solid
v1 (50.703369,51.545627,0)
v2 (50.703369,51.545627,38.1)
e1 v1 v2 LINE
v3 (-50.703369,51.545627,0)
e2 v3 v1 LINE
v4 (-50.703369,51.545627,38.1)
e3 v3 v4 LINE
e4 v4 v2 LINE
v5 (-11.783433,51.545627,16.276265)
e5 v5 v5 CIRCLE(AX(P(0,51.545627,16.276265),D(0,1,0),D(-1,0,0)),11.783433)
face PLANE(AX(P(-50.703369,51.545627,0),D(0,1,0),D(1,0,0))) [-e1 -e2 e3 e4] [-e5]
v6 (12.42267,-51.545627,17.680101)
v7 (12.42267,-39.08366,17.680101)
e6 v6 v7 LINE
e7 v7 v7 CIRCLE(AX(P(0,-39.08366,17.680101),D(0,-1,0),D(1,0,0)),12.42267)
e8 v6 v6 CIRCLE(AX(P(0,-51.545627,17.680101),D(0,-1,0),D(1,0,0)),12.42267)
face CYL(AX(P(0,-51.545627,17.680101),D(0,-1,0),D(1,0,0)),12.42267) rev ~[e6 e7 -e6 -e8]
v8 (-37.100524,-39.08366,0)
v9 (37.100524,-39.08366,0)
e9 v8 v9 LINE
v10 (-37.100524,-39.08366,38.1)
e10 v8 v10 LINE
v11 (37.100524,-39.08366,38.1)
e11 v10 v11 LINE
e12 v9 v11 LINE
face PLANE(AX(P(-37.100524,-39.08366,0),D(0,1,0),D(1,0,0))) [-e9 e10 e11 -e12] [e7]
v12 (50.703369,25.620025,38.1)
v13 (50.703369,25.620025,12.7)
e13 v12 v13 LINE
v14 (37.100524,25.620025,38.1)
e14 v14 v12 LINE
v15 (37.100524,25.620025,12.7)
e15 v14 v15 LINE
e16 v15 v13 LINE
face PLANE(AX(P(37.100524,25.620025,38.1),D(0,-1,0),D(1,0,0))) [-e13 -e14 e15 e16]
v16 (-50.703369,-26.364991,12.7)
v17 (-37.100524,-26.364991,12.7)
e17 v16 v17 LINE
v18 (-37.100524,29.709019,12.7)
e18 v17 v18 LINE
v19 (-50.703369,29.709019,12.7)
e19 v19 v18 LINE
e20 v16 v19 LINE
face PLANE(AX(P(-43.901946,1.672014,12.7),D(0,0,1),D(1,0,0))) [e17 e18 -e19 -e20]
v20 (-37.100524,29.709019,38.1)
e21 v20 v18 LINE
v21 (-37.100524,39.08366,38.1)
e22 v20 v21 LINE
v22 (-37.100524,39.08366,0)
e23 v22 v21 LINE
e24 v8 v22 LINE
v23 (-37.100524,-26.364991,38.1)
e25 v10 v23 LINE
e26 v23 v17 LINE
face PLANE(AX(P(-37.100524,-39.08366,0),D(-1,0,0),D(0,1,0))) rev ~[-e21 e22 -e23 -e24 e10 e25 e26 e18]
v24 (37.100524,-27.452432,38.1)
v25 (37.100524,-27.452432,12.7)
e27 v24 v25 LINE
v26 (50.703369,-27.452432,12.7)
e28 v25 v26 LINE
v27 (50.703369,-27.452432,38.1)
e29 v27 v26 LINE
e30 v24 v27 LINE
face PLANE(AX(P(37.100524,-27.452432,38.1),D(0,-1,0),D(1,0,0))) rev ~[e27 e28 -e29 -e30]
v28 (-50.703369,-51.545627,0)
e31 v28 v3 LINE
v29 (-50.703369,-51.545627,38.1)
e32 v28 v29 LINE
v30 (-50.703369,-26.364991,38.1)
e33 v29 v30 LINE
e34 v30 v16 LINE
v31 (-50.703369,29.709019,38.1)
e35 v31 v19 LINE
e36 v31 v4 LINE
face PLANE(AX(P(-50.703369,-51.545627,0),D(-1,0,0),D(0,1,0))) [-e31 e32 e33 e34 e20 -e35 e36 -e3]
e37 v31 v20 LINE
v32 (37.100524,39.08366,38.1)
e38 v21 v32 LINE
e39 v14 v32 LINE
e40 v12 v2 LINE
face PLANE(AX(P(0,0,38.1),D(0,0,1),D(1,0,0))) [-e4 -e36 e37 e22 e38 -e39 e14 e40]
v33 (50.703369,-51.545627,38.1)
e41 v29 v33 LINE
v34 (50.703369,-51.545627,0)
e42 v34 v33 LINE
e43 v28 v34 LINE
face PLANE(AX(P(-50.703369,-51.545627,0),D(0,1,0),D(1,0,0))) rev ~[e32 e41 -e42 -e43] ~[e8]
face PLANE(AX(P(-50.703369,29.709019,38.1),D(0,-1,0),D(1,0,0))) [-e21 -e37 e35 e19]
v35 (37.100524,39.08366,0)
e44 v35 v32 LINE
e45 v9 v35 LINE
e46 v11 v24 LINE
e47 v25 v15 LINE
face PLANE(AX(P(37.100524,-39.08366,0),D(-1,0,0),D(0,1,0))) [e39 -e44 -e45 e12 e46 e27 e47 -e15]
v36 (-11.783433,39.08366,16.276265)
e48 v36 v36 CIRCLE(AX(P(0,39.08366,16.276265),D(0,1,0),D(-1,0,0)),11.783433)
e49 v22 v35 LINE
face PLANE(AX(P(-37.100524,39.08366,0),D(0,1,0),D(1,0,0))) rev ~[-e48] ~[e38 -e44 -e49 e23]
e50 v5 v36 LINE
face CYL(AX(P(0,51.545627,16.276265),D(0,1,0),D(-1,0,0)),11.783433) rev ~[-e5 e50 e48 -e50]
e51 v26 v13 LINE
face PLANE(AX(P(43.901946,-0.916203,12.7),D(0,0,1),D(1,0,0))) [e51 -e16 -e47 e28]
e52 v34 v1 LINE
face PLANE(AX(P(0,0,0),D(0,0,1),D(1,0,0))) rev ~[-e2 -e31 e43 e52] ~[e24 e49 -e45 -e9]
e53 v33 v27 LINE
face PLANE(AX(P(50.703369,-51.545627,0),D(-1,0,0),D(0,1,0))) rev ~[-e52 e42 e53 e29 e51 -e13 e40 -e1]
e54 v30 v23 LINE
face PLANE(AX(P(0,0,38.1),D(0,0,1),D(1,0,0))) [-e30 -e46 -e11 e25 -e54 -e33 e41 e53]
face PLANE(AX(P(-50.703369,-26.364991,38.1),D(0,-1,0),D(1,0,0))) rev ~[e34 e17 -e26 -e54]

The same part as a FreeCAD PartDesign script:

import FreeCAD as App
import Part
import Sketcher

doc = App.newDocument("Part")
params = doc.addObject("Spreadsheet::Sheet", "Params")
for row, (alias, value) in enumerate([
    ("pad1_length", "1.5 in"),
    ("pocket1_length", "1 in"),
    ("pocket2_length", "1 in"),
    ("pocket3_length", "1 in"),
    ("pocket4_length", "1 in"),
], start=1):
    params.set(f"A{row}", alias)
    params.set(f"B{row}", "=" + value)
    params.setAlias(f"B{row}", alias)

body = doc.addObject("PartDesign::Body", "Body")

sketch1 = doc.addObject("Sketcher::SketchObject", "Sketch")
body.addObject(sketch1)
sketch1.AttachmentSupport = (doc.XY_Plane, [""])
sketch1.MapMode = "FlatFace"
sketch1.addGeometry(Part.LineSegment(App.Vector(-51, 52, 0), App.Vector(-51, -52, 0)), False)
sketch1.addGeometry(Part.LineSegment(App.Vector(-51, -52, 0), App.Vector(51, -52, 0)), False)
sketch1.addGeometry(Part.LineSegment(App.Vector(51, -52, 0), App.Vector(51, 52, 0)), False)
sketch1.addGeometry(Part.LineSegment(App.Vector(51, 52, 0), App.Vector(-51, 52, 0)), False)
sketch1.addGeometry(Part.LineSegment(App.Vector(37, -39, 0), App.Vector(-37, -39, 0)), False)
sketch1.addGeometry(Part.LineSegment(App.Vector(-37, -39, 0), App.Vector(-37, 39, 0)), False)
sketch1.addGeometry(Part.LineSegment(App.Vector(-37, 39, 0), App.Vector(37, 39, 0)), False)
sketch1.addGeometry(Part.LineSegment(App.Vector(37, 39, 0), App.Vector(37, -39, 0)), False)
sketch1.addConstraint(Sketcher.Constraint("Coincident", 0, 2, 1, 1))
sketch1.addConstraint(Sketcher.Constraint("Coincident", 1, 2, 2, 1))
sketch1.addConstraint(Sketcher.Constraint("Coincident", 2, 2, 3, 1))
sketch1.addConstraint(Sketcher.Constraint("Coincident", 3, 2, 0, 1))
sketch1.addConstraint(Sketcher.Constraint("Coincident", 4, 2, 5, 1))
sketch1.addConstraint(Sketcher.Constraint("Coincident", 5, 2, 6, 1))
sketch1.addConstraint(Sketcher.Constraint("Coincident", 6, 2, 7, 1))
sketch1.addConstraint(Sketcher.Constraint("Coincident", 7, 2, 4, 1))
sketch1.addConstraint(Sketcher.Constraint("Vertical", 0))
sketch1.addConstraint(Sketcher.Constraint("Horizontal", 1))
sketch1.addConstraint(Sketcher.Constraint("Vertical", 2))
sketch1.addConstraint(Sketcher.Constraint("Horizontal", 3))
sketch1.addConstraint(Sketcher.Constraint("Horizontal", 4))
sketch1.addConstraint(Sketcher.Constraint("Vertical", 5))
sketch1.addConstraint(Sketcher.Constraint("Horizontal", 6))
sketch1.addConstraint(Sketcher.Constraint("Vertical", 7))
sketch1.addConstraint(Sketcher.Constraint("Symmetric", 0, 2, 2, 2, -1, 1))
sketch1.addConstraint(Sketcher.Constraint("Symmetric", 4, 2, 6, 2, -1, 1))
sketch1.addConstraint(Sketcher.Constraint("DistanceX", 1, 1, 1, 2, 101.406738))
sketch1.addConstraint(Sketcher.Constraint("DistanceY", 5, 1, 5, 2, 78.167319))
sketch1.addConstraint(Sketcher.Constraint("DistanceX", 4, 2, 4, 1, 74.201047))
sketch1.addConstraint(Sketcher.Constraint("DistanceY", 0, 2, 0, 1, 103.091255))
pad1 = doc.addObject("PartDesign::Pad", "Pad")
body.addObject(pad1)
pad1.Profile = sketch1
pad1.setExpression("Length", "Params.pad1_length")

sketch2 = doc.addObject("Sketcher::SketchObject", "Sketch001")
body.addObject(sketch2)
sketch2.AttachmentSupport = (doc.XY_Plane, [""])
sketch2.MapMode = "FlatFace"
sketch2.AttachmentOffset = App.Placement(App.Vector(0, 0, 1.5 * 25.4), App.Rotation())
sketch2.addGeometry(Part.LineSegment(App.Vector(-51, 30, 0), App.Vector(-51, -26, 0)), False)
sketch2.addGeometry(Part.LineSegment(App.Vector(-51, -26, 0), App.Vector(-37, -26, 0)), False)
sketch2.addGeometry(Part.LineSegment(App.Vector(-37, -26, 0), App.Vector(-37, 30, 0)), False)
sketch2.addGeometry(Part.LineSegment(App.Vector(-37, 30, 0), App.Vector(-51, 30, 0)), False)
sketch2.addConstraint(Sketcher.Constraint("Coincident", 0, 2, 1, 1))
sketch2.addConstraint(Sketcher.Constraint("Coincident", 1, 2, 2, 1))
sketch2.addConstraint(Sketcher.Constraint("Coincident", 2, 2, 3, 1))
sketch2.addConstraint(Sketcher.Constraint("Coincident", 3, 2, 0, 1))
sketch2.addConstraint(Sketcher.Constraint("Vertical", 0))
sketch2.addConstraint(Sketcher.Constraint("Horizontal", 1))
sketch2.addConstraint(Sketcher.Constraint("Vertical", 2))
sketch2.addConstraint(Sketcher.Constraint("Horizontal", 3))
sketch2.addConstraint(Sketcher.Constraint("DistanceY", 0, 2, 0, 1, 56.07401))
sketch2.addConstraint(Sketcher.Constraint("DistanceX", 1, 1, 1, 2, 13.602845))
sketch2.addConstraint(Sketcher.Constraint("DistanceX", 0, 2, -1, 1, 50.703369))
sketch2.addConstraint(Sketcher.Constraint("DistanceY", 0, 2, -1, 1, 26.364991))
pocket1 = doc.addObject("PartDesign::Pocket", "Pocket")
body.addObject(pocket1)
pocket1.Profile = sketch2
pocket1.setExpression("Length", "Params.pocket1_length")

sketch3 = doc.addObject("Sketcher::SketchObject", "Sketch002")
body.addObject(sketch3)
sketch3.AttachmentSupport = (doc.XY_Plane, [""])
sketch3.MapMode = "FlatFace"
sketch3.AttachmentOffset = App.Placement(App.Vector(0, 0, 1.5 * 25.4), App.Rotation())
sketch3.addGeometry(Part.LineSegment(App.Vector(37, 26, 0), App.Vector(37, -27, 0)), False)
sketch3.addGeometry(Part.LineSegment(App.Vector(37, -27, 0), App.Vector(51, -27, 0)), False)
sketch3.addGeometry(Part.LineSegment(App.Vector(51, -27, 0), App.Vector(51, 26, 0)), False)
sketch3.addGeometry(Part.LineSegment(App.Vector(51, 26, 0), App.Vector(37, 26, 0)), False)
sketch3.addConstraint(Sketcher.Constraint("Coincident", 0, 2, 1, 1))
sketch3.addConstraint(Sketcher.Constraint("Coincident", 1, 2, 2, 1))
sketch3.addConstraint(Sketcher.Constraint("Coincident", 2, 2, 3, 1))
sketch3.addConstraint(Sketcher.Constraint("Coincident", 3, 2, 0, 1))
sketch3.addConstraint(Sketcher.Constraint("Vertical", 0))
sketch3.addConstraint(Sketcher.Constraint("Horizontal", 1))
sketch3.addConstraint(Sketcher.Constraint("Vertical", 2))
sketch3.addConstraint(Sketcher.Constraint("Horizontal", 3))
sketch3.addConstraint(Sketcher.Constraint("DistanceX", 1, 1, 1, 2, 13.602845))
sketch3.addConstraint(Sketcher.Constraint("DistanceY", 0, 2, 0, 1, 53.072456))
sketch3.addConstraint(Sketcher.Constraint("DistanceY", 0, 2, -1, 1, 27.452432))
sketch3.addConstraint(Sketcher.Constraint("DistanceX", -1, 1, 1, 2, 50.703369))
pocket2 = doc.addObject("PartDesign::Pocket", "Pocket001")
body.addObject(pocket2)
pocket2.Profile = sketch3
pocket2.setExpression("Length", "Params.pocket2_length")

sketch4 = doc.addObject("Sketcher::SketchObject", "Sketch003")
body.addObject(sketch4)
sketch4.AttachmentSupport = (doc.XZ_Plane, [""])
sketch4.MapMode = "FlatFace"
sketch4.AttachmentOffset = App.Placement(App.Vector(0, 0, 51.545627), App.Rotation())
sketch4.addGeometry(Part.Circle(App.Vector(0, 18, 0), App.Vector(0, 0, 1), 12), False)
sketch4.addConstraint(Sketcher.Constraint("PointOnObject", 0, 3, -2))
sketch4.addConstraint(Sketcher.Constraint("Diameter", 0, 24.845339))
sketch4.addConstraint(Sketcher.Constraint("DistanceY", -1, 1, 0, 3, 17.680101))
pocket3 = doc.addObject("PartDesign::Pocket", "Pocket002")
body.addObject(pocket3)
pocket3.Profile = sketch4
pocket3.setExpression("Length", "Params.pocket3_length")

sketch5 = doc.addObject("Sketcher::SketchObject", "Sketch004")
body.addObject(sketch5)
sketch5.AttachmentSupport = (doc.XZ_Plane, [""])
sketch5.MapMode = "FlatFace"
sketch5.AttachmentOffset = App.Placement(App.Vector(0, 0, -51.545627), App.Rotation())
sketch5.addGeometry(Part.Circle(App.Vector(0, 16, 0), App.Vector(0, 0, 1), 12), False)
sketch5.addConstraint(Sketcher.Constraint("PointOnObject", 0, 3, -2))
sketch5.addConstraint(Sketcher.Constraint("Diameter", 0, 23.566867))
sketch5.addConstraint(Sketcher.Constraint("DistanceY", -1, 1, 0, 3, 16.276265))
pocket4 = doc.addObject("PartDesign::Pocket", "Pocket003")
body.addObject(pocket4)
pocket4.Profile = sketch5
pocket4.setExpression("Length", "Params.pocket4_length")
pocket4.Reversed = True

doc.recompute()
